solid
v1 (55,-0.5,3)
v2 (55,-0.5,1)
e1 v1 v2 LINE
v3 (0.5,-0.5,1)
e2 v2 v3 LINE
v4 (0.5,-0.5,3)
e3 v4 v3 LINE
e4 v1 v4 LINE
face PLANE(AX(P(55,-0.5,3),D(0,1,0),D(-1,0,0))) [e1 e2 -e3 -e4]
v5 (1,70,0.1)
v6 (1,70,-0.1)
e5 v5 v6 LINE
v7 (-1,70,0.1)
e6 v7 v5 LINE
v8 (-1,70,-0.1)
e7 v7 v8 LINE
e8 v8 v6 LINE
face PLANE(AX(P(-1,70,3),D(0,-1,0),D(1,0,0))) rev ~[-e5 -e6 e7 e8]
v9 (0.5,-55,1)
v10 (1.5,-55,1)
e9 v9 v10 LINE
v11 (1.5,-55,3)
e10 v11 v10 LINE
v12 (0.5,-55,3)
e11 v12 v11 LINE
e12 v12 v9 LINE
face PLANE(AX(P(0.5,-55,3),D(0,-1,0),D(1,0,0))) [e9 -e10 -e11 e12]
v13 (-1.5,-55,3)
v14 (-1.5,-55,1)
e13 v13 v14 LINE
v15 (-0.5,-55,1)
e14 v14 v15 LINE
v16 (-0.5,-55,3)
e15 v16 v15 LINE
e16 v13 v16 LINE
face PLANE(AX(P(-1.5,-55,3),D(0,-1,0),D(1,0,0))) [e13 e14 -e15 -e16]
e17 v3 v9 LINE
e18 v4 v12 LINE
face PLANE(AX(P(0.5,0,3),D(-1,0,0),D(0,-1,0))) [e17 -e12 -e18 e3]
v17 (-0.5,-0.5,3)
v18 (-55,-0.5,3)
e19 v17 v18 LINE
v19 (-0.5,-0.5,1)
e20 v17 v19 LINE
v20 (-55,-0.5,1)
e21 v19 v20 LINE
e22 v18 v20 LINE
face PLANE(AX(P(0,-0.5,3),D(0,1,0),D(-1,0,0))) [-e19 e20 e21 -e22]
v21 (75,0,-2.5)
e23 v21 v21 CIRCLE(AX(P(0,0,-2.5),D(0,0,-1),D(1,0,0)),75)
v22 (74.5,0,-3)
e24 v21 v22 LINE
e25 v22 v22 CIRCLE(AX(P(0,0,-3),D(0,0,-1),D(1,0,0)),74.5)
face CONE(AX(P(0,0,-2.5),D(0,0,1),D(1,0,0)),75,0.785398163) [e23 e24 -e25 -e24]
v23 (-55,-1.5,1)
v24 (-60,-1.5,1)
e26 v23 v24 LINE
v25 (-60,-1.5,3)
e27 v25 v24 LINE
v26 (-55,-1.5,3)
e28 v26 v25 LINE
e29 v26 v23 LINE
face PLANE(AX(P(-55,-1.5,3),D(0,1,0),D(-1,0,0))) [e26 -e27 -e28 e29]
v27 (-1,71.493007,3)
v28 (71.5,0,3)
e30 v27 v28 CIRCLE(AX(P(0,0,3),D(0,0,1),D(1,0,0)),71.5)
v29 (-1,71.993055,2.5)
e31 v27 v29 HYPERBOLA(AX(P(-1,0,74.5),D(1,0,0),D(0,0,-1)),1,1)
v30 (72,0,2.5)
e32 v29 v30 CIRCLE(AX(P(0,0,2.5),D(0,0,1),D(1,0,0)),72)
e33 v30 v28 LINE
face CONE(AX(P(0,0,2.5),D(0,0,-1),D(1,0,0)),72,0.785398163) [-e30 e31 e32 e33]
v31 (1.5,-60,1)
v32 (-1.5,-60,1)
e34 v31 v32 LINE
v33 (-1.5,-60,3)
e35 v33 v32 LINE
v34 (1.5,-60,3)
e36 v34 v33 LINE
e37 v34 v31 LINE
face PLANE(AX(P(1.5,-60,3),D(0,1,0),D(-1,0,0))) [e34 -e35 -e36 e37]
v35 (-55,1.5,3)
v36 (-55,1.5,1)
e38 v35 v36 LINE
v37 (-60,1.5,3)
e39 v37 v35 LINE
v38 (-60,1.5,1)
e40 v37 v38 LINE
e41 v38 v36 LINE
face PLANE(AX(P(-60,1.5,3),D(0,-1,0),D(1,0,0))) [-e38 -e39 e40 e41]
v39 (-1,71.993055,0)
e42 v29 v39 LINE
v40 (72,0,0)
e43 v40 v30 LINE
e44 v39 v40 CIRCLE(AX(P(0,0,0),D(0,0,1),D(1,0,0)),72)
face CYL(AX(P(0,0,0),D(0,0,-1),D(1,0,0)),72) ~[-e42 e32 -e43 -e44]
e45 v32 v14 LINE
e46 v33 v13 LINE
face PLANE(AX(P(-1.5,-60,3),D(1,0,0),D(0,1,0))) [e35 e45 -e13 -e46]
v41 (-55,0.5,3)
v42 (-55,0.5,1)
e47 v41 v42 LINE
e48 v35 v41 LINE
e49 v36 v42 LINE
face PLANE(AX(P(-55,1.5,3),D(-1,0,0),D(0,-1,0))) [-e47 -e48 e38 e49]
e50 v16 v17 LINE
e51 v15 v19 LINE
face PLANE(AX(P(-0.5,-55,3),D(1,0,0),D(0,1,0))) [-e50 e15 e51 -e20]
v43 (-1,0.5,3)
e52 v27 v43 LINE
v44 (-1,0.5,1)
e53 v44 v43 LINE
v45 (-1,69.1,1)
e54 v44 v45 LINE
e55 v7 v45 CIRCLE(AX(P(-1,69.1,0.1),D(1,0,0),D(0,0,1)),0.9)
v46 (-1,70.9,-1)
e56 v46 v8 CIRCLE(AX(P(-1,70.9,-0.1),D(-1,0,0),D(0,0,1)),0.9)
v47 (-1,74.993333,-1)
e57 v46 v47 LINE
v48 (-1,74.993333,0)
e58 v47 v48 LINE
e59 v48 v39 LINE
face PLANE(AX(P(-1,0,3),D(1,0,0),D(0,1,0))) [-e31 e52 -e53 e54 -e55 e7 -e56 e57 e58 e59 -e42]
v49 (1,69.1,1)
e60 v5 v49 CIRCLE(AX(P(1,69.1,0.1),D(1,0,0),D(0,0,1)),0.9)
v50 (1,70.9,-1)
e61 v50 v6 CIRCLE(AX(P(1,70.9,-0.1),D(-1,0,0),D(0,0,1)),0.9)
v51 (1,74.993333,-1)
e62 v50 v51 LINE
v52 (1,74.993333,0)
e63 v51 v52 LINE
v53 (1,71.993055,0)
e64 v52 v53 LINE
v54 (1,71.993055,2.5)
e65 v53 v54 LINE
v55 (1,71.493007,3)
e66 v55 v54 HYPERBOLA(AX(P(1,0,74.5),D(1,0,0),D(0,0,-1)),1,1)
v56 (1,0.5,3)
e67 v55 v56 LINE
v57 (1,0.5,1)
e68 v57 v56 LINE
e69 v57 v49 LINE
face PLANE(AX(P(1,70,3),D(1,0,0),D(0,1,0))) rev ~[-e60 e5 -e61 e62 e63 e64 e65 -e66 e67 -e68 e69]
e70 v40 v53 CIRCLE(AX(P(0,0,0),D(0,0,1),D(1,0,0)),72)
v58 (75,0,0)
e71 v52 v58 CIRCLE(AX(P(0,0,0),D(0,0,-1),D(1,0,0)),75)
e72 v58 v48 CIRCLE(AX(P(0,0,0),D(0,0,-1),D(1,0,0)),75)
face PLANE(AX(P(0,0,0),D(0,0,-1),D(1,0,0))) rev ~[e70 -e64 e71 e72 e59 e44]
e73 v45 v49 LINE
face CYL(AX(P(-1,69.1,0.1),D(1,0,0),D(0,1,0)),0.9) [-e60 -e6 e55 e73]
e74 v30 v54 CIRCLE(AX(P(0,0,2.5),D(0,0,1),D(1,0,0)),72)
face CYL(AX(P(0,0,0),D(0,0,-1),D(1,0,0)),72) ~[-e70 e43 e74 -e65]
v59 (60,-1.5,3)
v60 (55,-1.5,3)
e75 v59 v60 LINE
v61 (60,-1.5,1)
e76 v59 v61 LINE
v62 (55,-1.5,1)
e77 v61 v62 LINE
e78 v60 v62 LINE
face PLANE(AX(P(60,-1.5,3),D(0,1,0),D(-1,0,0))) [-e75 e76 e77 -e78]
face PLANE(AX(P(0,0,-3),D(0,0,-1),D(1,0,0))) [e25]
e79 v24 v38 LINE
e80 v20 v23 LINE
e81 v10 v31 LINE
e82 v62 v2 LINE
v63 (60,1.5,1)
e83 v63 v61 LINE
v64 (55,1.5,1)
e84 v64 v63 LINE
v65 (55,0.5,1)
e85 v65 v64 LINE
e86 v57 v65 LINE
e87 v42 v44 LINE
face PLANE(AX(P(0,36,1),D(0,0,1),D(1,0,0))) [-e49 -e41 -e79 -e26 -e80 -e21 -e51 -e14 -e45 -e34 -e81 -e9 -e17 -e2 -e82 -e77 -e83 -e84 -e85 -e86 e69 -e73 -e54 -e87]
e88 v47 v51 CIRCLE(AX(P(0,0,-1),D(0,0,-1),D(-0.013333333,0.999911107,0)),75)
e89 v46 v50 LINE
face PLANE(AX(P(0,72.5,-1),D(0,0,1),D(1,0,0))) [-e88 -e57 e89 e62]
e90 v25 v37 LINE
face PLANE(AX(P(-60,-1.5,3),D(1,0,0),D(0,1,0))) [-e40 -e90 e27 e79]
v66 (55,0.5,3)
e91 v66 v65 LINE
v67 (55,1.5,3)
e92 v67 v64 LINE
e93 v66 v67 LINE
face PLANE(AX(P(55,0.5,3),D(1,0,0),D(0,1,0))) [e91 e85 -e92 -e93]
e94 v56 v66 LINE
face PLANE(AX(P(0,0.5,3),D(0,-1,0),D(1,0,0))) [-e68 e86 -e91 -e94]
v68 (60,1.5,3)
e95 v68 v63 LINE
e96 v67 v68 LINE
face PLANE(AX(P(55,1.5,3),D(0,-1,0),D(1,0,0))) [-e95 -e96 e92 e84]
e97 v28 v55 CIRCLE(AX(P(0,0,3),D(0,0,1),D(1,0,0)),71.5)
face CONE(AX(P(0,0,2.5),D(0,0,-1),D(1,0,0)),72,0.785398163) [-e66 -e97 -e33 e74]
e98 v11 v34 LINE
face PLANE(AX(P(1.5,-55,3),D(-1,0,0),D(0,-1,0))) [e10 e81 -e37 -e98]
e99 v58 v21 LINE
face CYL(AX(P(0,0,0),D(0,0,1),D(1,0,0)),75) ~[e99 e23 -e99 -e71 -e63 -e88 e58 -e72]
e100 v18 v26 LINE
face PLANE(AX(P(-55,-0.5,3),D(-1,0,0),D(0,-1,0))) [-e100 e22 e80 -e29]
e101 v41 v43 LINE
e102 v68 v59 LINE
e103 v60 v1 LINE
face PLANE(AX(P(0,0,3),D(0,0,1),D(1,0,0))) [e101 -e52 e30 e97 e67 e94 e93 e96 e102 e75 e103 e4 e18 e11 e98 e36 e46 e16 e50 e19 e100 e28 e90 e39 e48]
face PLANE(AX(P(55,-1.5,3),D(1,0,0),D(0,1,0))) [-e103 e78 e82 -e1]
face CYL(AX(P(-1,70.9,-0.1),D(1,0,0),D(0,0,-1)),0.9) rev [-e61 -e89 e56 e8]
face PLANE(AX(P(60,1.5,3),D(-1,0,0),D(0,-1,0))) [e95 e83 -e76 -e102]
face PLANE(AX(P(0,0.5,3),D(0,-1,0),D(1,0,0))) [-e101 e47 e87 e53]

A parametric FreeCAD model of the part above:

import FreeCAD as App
import Part
import Sketcher
from FreeCAD import Vector
Q = App.Units.Quantity


def edges_at(feature, points):
    """Names of the edges that pass closest to the given points."""
    edges = feature.Shape.Edges
    near = lambda p: min(range(len(edges)), key=lambda i: edges[i].distToShape(Part.Vertex(*p))[0])
    return sorted({f"Edge{near(p) + 1}" for p in points})


def add_polygon(sketch, points):
    """Adds a closed chain of lines whose ends are joined by coincident constraints."""
    first, n = sketch.GeometryCount, len(points)
    for a, b in zip(points, points[1:] + points[:1]):
        sketch.addGeometry(Part.LineSegment(App.Vector(*a, 0), App.Vector(*b, 0)), False)
    for i in range(n):
        sketch.addConstraint(Sketcher.Constraint("Coincident", first + i, 2, first + (i + 1) % n, 1))

doc = App.newDocument("Part")
params = doc.addObject("Spreadsheet::Sheet", "Params")
for row, (alias, value) in enumerate([
    ("sketch1_diameter", "144 mm"),
    ("pad1_length", "3 mm"),
    ("sketch2_diameter", "150 mm"),
    ("pad2_length", "3 mm"),
    ("chamfer_size", "0.5 mm"),
    ("chamfer2_size", "0.5 mm"),
    ("sketch3_width", "5 mm"),
    ("sketch3_width2", "55 mm"),
    ("sketch3_height", "3 mm"),
    ("pocket1_length", "2 mm"),
    ("sketch4_width", "2 mm"),
    ("sketch4_height", "72 mm"),
    ("pocket2_length", "2 mm"),
    ("sketch5_width", "2 mm"),
    ("sketch5_height", "5 mm"),
    ("pocket3_length", "4 mm"),
    ("fillet_radius", "0.9 mm"),
], start=1):
    params.set(f"A{row}", alias)
    params.set(f"B{row}", "=" + value)
    params.setAlias(f"B{row}", alias)

body = doc.addObject("PartDesign::Body", "Body")

sketch1 = doc.addObject("Sketcher::SketchObject", "Sketch")
body.addObject(sketch1)
sketch1.AttachmentSupport = (doc.XY_Plane, [""])
sketch1.MapMode = "FlatFace"
sketch1.addGeometry(Part.Circle(Vector(0, 0, 0), Vector(0, 0, 1), 72), False)
sketch1.addConstraint([
    Sketcher.Constraint("Coincident", 0, 3, -1, 1),
    Sketcher.Constraint("Diameter", 0, Q("144 mm")),
])
sketch1.setExpression("Constraints[1]", "Params.sketch1_diameter")
pad1 = doc.addObject("PartDesign::Pad", "Pad")
body.addObject(pad1)
pad1.Profile = sketch1
pad1.setExpression("Length", "Params.pad1_length")

sketch2 = doc.addObject("Sketcher::SketchObject", "Sketch001")
body.addObject(sketch2)
sketch2.AttachmentSupport = (doc.XY_Plane, [""])
sketch2.MapMode = "FlatFace"
sketch2.addGeometry(Part.Circle(Vector(0, 0, 0), Vector(0, 0, 1), 75), False)
sketch2.addConstraint([
    Sketcher.Constraint("Coincident", 0, 3, -1, 1),
    Sketcher.Constraint("Diameter", 0, Q("150 mm")),
])
sketch2.setExpression("Constraints[1]", "Params.sketch2_diameter")
pad2 = doc.addObject("PartDesign::Pad", "Pad001")
body.addObject(pad2)
pad2.Profile = sketch2
pad2.setExpression("Length", "Params.pad2_length")
pad2.Reversed = True
doc.recompute()

chamfer = doc.addObject("PartDesign::Chamfer", "Chamfer")
body.addObject(chamfer)
chamfer.Base = (pad2, edges_at(pad2, [(-75, 0, -3)]))
chamfer.setExpression("Size", "Params.chamfer_size")
doc.recompute()

chamfer2 = doc.addObject("PartDesign::Chamfer", "Chamfer001")
body.addObject(chamfer2)
chamfer2.Base = (chamfer, edges_at(chamfer, [(-72, 0, 3)]))
chamfer2.setExpression("Size", "Params.chamfer2_size")

sketch3 = doc.addObject("Sketcher::SketchObject", "Sketch002")
body.addObject(sketch3)
sketch3.AttachmentSupport = (doc.XY_Plane, [""])
sketch3.MapMode = "FlatFace"
sketch3.AttachmentOffset = App.Placement(Vector(0, 0, 3), App.Rotation())
add_polygon(sketch3, [(-60, 1.5), (-60, -1.5), (-55, -1.5), (-55, -0.5), (0, -0.5), (0, 0.5), (-55, 0.5), (-55, 1.5)])
sketch3.addConstraint([
    Sketcher.Constraint("Vertical", 0),
    Sketcher.Constraint("Horizontal", 1),
    Sketcher.Constraint("Vertical", 2),
    Sketcher.Constraint("Horizontal", 3),
    Sketcher.Constraint("Vertical", 4),
    Sketcher.Constraint("Horizontal", 5),
    Sketcher.Constraint("Vertical", 6),
    Sketcher.Constraint("Horizontal", 7),
    Sketcher.Constraint("Symmetric", 3, 2, 4, 2, -1, 1),
    Sketcher.Constraint("Symmetric", 1, 2, 6, 2, -1),
    Sketcher.Constraint("Equal", 2, 4),
    Sketcher.Constraint("DistanceX", 1, 1, 1, 2, Q("5 mm")),
    Sketcher.Constraint("DistanceX", 3, 1, 3, 2, Q("55 mm")),
    Sketcher.Constraint("DistanceY", 0, 2, 0, 1, Q("3 mm")),
])
sketch3.setExpression("Constraints[19]", "Params.sketch3_width")
sketch3.setExpression("Constraints[20]", "Params.sketch3_width2")
sketch3.setExpression("Constraints[21]", "Params.sketch3_height")
pocket1 = doc.addObject("PartDesign::Pocket", "Pocket")
body.addObject(pocket1)
pocket1.Profile = sketch3
pocket1.setExpression("Length", "Params.pocket1_length")
doc.recompute()

polarpattern = doc.addObject("PartDesign::PolarPattern", "PolarPattern")
body.addObject(polarpattern)
polarpattern.Originals = [pocket1]
polarpattern.Axis = (doc.Z_Axis, [""])
polarpattern.Angle = 180
polarpattern.Occurrences = 3
body.Tip = polarpattern

sketch4 = doc.addObject("Sketcher::SketchObject", "Sketch003")
body.addObject(sketch4)
sketch4.AttachmentSupport = (doc.XY_Plane, [""])
sketch4.MapMode = "FlatFace"
sketch4.AttachmentOffset = App.Placement(Vector(0, 0, 3), App.Rotation())
add_polygon(sketch4, [(-1, 72), (-1, 0), (1, 0), (1, 72)])
sketch4.addConstraint([
    Sketcher.Constraint("Vertical", 0),
    Sketcher.Constraint("Horizontal", 1),
    Sketcher.Constraint("Vertical", 2),
    Sketcher.Constraint("Horizontal", 3),
    Sketcher.Constraint("Symmetric", 0, 2, 1, 2, -1, 1),
    Sketcher.Constraint("DistanceX", 1, 1, 1, 2, Q("2 mm")),
    Sketcher.Constraint("DistanceY", 0, 2, 0, 1, Q("72 mm")),
])
sketch4.setExpression("Constraints[9]", "Params.sketch4_width")
sketch4.setExpression("Constraints[10]", "Params.sketch4_height")
pocket2 = doc.addObject("PartDesign::Pocket", "Pocket001")
body.addObject(pocket2)
pocket2.Profile = sketch4
pocket2.setExpression("Length", "Params.pocket2_length")

sketch5 = doc.addObject("Sketcher::SketchObject", "Sketch004")
body.addObject(sketch5)
sketch5.AttachmentSupport = (doc.XY_Plane, [""])
sketch5.MapMode = "FlatFace"
sketch5.AttachmentOffset = App.Placement(Vector(0, 0, 3), App.Rotation())
add_polygon(sketch5, [(-1, 75), (-1, 70), (1, 70), (1, 75)])
sketch5.addConstraint([
    Sketcher.Constraint("Vertical", 0),
    Sketcher.Constraint("Horizontal", 1),
    Sketcher.Constraint("Vertical", 2),
    Sketcher.Constraint("Horizontal", 3),
    Sketcher.Constraint("DistanceX", 1, 1, 1, 2, Q("2 mm")),
    Sketcher.Constraint("DistanceY", 0, 2, 0, 1, Q("5 mm")),
    Sketcher.Constraint("DistanceX", 0, 2, -1, 1, Q("1 mm")),
    Sketcher.Constraint("DistanceY", -1, 1, 0, 2, Q("70 mm")),
])
sketch5.setExpression("Constraints[8]", "Params.sketch5_width")
sketch5.setExpression("Constraints[9]", "Params.sketch5_height")
pocket3 = doc.addObject("PartDesign::Pocket", "Pocket002")
body.addObject(pocket3)
pocket3.Profile = sketch5
pocket3.setExpression("Length", "Params.pocket3_length")
doc.recompute()

fillet = doc.addObject("PartDesign::Fillet", "Fillet")
body.addObject(fillet)
fillet.Base = (pocket3, edges_at(pocket3, [(0, 70, 1), (0, 70, -1)]))
fillet.setExpression("Radius", "Params.fillet_radius")

doc.recompute()
